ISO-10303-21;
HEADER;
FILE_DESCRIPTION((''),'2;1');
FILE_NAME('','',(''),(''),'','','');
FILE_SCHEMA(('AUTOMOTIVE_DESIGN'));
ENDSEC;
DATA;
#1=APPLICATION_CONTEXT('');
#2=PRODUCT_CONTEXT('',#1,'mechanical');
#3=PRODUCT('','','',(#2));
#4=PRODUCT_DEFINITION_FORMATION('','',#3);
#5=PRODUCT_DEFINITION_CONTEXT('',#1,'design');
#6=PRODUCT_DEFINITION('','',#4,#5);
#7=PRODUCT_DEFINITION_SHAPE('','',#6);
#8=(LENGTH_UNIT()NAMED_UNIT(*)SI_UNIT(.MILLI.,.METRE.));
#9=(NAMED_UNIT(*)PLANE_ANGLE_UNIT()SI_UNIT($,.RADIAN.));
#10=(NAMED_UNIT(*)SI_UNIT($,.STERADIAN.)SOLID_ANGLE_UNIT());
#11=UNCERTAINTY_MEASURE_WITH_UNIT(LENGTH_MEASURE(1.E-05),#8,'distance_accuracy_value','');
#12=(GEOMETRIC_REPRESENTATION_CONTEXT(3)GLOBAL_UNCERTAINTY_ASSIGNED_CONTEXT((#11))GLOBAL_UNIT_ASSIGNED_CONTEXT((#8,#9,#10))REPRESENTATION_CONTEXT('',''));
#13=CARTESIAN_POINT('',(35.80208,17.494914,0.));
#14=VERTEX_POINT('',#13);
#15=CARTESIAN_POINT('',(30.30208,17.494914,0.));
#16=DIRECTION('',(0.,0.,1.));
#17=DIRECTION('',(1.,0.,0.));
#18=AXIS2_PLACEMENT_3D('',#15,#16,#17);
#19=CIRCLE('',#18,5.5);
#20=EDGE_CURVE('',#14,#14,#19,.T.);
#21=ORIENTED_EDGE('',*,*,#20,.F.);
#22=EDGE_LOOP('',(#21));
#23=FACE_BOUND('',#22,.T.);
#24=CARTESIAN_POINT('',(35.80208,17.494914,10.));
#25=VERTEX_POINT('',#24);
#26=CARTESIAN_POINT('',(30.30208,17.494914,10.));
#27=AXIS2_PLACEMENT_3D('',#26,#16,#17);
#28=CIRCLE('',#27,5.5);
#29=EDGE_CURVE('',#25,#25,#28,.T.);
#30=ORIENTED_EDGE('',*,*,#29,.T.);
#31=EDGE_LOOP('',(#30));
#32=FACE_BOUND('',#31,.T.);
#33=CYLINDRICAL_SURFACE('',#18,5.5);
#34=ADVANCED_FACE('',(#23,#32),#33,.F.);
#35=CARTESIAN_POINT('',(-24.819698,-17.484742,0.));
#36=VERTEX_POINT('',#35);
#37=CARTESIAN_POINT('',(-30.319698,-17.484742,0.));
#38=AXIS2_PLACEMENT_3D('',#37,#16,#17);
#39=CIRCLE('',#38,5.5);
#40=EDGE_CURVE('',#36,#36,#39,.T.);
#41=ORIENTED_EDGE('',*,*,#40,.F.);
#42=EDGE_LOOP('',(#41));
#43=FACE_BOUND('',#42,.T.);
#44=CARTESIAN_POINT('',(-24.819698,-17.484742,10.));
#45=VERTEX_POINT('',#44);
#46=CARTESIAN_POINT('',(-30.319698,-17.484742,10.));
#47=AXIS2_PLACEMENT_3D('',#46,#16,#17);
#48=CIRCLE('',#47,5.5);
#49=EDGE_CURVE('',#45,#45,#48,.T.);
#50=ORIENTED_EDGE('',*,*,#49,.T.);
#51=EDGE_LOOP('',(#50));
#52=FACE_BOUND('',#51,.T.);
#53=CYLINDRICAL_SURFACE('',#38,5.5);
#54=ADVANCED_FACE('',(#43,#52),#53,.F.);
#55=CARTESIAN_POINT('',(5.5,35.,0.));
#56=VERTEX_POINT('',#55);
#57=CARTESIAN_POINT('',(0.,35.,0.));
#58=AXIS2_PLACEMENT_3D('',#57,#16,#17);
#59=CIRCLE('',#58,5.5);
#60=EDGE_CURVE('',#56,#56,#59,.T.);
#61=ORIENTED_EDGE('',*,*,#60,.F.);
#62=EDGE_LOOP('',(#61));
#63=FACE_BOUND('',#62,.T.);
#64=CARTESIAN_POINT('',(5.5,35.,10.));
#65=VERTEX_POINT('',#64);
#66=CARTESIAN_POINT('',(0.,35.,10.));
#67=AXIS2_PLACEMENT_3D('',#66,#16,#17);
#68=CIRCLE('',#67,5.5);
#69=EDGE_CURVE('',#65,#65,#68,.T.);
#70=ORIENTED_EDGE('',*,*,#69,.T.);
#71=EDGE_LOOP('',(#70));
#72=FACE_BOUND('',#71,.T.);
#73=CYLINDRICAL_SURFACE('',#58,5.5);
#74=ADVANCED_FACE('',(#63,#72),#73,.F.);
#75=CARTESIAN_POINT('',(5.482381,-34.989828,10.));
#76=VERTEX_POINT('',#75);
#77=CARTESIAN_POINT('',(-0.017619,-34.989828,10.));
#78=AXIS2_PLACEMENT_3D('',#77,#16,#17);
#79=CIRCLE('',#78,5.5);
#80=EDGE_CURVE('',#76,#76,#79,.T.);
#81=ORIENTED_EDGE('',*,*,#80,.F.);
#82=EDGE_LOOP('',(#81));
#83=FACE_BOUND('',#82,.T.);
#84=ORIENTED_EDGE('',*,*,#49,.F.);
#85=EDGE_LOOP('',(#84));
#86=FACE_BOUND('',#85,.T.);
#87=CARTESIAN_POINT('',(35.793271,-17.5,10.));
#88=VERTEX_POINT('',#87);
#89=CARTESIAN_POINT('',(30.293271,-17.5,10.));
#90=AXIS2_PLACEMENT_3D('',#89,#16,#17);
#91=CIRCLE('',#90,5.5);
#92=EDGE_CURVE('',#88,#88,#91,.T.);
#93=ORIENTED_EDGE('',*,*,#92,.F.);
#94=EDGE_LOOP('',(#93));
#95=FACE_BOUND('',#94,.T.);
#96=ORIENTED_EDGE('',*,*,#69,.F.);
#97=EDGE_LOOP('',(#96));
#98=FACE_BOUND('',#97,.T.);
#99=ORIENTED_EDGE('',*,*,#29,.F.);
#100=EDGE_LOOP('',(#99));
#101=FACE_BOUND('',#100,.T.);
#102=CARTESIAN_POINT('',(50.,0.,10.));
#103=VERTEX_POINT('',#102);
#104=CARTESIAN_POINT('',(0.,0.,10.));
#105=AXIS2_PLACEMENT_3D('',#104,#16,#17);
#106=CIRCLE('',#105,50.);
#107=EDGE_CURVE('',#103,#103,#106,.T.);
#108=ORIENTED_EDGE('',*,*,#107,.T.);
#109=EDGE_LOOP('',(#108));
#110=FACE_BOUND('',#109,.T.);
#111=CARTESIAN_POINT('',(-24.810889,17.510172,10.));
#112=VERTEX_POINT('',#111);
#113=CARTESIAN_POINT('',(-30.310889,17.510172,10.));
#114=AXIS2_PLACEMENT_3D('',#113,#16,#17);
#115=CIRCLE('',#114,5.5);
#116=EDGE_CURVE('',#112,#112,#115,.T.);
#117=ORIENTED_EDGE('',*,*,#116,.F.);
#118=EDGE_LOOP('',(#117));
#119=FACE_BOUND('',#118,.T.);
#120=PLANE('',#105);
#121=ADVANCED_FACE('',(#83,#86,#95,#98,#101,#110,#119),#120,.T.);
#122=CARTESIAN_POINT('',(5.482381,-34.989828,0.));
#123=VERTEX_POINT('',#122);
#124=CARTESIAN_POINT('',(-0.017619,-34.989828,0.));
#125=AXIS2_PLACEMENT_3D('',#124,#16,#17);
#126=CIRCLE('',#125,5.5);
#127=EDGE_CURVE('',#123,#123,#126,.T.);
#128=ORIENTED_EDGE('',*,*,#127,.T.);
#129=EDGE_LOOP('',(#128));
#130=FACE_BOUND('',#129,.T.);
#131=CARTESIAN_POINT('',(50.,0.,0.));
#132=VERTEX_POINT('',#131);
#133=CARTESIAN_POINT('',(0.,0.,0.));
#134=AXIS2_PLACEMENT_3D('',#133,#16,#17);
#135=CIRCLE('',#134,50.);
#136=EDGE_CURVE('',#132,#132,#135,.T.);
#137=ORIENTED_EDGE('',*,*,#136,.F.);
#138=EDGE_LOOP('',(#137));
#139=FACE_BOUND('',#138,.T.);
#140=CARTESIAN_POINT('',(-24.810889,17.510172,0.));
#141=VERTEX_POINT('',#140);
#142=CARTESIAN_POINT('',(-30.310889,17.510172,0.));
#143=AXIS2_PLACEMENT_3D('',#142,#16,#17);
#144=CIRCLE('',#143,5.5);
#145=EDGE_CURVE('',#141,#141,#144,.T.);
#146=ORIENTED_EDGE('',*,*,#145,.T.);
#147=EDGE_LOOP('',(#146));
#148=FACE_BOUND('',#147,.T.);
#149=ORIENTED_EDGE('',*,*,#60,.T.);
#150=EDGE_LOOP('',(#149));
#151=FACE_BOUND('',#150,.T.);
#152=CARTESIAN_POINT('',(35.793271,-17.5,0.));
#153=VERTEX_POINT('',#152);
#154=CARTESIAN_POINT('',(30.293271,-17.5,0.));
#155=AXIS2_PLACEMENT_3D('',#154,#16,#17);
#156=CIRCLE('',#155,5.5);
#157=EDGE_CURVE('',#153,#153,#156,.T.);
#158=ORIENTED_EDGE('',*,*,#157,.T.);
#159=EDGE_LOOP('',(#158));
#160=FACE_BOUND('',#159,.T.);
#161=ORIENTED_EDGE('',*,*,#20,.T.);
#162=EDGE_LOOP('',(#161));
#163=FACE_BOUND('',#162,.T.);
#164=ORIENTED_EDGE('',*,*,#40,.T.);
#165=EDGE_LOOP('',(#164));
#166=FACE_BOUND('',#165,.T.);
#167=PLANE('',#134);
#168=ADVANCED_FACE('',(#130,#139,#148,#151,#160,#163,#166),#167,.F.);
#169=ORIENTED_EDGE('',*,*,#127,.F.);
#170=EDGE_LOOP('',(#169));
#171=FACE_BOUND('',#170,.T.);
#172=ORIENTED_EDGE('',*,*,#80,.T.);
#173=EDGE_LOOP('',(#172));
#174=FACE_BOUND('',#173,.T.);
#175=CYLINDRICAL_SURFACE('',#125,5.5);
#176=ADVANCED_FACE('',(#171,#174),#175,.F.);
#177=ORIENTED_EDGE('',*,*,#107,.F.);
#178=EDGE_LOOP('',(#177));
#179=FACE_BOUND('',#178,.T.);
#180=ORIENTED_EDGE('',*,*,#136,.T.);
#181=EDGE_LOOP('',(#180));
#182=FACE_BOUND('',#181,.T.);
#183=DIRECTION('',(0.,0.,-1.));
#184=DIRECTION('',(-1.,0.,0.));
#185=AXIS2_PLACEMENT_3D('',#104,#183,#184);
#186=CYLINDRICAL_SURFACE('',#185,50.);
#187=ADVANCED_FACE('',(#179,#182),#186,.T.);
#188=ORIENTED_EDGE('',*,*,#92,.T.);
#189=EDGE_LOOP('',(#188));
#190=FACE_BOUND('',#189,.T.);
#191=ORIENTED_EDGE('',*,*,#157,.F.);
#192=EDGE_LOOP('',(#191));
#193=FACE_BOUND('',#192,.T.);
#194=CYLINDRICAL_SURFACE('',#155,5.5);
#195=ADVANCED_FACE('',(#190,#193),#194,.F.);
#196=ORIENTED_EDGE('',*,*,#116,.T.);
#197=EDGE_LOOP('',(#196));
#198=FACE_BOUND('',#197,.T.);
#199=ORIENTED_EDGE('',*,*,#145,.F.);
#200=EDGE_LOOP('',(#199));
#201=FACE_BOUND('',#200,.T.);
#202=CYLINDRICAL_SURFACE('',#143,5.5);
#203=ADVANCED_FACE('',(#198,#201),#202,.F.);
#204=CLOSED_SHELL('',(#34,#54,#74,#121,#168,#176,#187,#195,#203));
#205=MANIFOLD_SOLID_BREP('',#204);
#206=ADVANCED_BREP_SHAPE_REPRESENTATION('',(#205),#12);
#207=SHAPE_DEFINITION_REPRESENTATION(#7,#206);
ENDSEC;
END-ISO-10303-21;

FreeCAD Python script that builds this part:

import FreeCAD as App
import Part
import Sketcher
from FreeCAD import Vector
Q = App.Units.Quantity

doc = App.newDocument("Part")
body = doc.addObject("PartDesign::Body", "Body")

sketch1 = body.newObject("Sketcher::SketchObject", "Sketch")
sketch1.AttachmentSupport = (doc.getObject("XY_Plane"), [""])
sketch1.MapMode = "FlatFace"
sketch1.addGeometry(Part.Circle(Vector(0, 0, 0), Vector(0, 0, 1), 50), False)
sketch1.addConstraint(Sketcher.Constraint("Coincident", 0, 3, -1, 1))
sketch1.addConstraint(Sketcher.Constraint("Diameter", 0, Q("100 mm")))
pad1 = body.newObject("PartDesign::Pad", "Pad")
pad1.Profile = sketch1
pad1.Length = 10

sketch2 = body.newObject("Sketcher::SketchObject", "Sketch001")
sketch2.AttachmentSupport = (doc.getObject("XY_Plane"), [""])
sketch2.MapMode = "FlatFace"
sketch2.AttachmentOffset = App.Placement(Vector(0, 0, 10), App.Rotation())
sketch2.addGeometry(Part.Circle(Vector(0, 35, 0), Vector(0, 0, 1), 6), False)
sketch2.addGeometry(Part.Circle(Vector(30, 17, 0), Vector(0, 0, 1), 6), False)
sketch2.addGeometry(Part.Circle(Vector(30, -18, 0), Vector(0, 0, 1), 6), False)
sketch2.addGeometry(Part.Circle(Vector(0, -35, 0), Vector(0, 0, 1), 6), False)
sketch2.addGeometry(Part.Circle(Vector(-30, -17, 0), Vector(0, 0, 1), 6), False)
sketch2.addGeometry(Part.Circle(Vector(-30, 18, 0), Vector(0, 0, 1), 6), False)
sketch2.addConstraint(Sketcher.Constraint("Equal", 0, 1))
sketch2.addConstraint(Sketcher.Constraint("Equal", 1, 2))
sketch2.addConstraint(Sketcher.Constraint("Equal", 2, 3))
sketch2.addConstraint(Sketcher.Constraint("Equal", 3, 4))
sketch2.addConstraint(Sketcher.Constraint("Equal", 4, 5))
sketch2.addConstraint(Sketcher.Constraint("PointOnObject", 0, 3, -2))
sketch2.addConstraint(Sketcher.Constraint("Diameter", 0, Q("11 mm")))
sketch2.addConstraint(Sketcher.Constraint("DistanceY", -1, 1, 0, 3, Q("35 mm")))
sketch2.addConstraint(Sketcher.Constraint("DistanceY", 2, 3, -1, 1, Q("17.5 mm")))
sketch2.addConstraint(Sketcher.Constraint("DistanceY", 3, 3, 5, 3, Q("52.5 mm")))
sketch2.addConstraint(Sketcher.Constraint("DistanceX", 4, 3, -1, 1, Q("30.319698 mm")))
sketch2.addConstraint(Sketcher.Constraint("DistanceX", 3, 3, 1, 3, Q("30.319698 mm")))
sketch2.addConstraint(Sketcher.Constraint("DistanceX", -1, 1, 1, 3, Q("30.30208 mm")))
sketch2.addConstraint(Sketcher.Constraint("DistanceX", -1, 1, 2, 3, Q("30.293271 mm")))
sketch2.addConstraint(Sketcher.Constraint("DistanceY", 4, 3, -1, 1, Q("17.484742 mm")))
sketch2.addConstraint(Sketcher.Constraint("DistanceX", 5, 3, -1, 1, Q("30.310889 mm")))
sketch2.addConstraint(Sketcher.Constraint("DistanceY", 3, 3, 1, 3, Q("52.484742 mm")))
sketch2.addConstraint(Sketcher.Constraint("DistanceY", -1, 1, 1, 3, Q("17.494914 mm")))
pocket1 = body.newObject("PartDesign::Pocket", "Pocket")
pocket1.Profile = sketch2
pocket1.Type = "ThroughAll"

doc.recompute()
